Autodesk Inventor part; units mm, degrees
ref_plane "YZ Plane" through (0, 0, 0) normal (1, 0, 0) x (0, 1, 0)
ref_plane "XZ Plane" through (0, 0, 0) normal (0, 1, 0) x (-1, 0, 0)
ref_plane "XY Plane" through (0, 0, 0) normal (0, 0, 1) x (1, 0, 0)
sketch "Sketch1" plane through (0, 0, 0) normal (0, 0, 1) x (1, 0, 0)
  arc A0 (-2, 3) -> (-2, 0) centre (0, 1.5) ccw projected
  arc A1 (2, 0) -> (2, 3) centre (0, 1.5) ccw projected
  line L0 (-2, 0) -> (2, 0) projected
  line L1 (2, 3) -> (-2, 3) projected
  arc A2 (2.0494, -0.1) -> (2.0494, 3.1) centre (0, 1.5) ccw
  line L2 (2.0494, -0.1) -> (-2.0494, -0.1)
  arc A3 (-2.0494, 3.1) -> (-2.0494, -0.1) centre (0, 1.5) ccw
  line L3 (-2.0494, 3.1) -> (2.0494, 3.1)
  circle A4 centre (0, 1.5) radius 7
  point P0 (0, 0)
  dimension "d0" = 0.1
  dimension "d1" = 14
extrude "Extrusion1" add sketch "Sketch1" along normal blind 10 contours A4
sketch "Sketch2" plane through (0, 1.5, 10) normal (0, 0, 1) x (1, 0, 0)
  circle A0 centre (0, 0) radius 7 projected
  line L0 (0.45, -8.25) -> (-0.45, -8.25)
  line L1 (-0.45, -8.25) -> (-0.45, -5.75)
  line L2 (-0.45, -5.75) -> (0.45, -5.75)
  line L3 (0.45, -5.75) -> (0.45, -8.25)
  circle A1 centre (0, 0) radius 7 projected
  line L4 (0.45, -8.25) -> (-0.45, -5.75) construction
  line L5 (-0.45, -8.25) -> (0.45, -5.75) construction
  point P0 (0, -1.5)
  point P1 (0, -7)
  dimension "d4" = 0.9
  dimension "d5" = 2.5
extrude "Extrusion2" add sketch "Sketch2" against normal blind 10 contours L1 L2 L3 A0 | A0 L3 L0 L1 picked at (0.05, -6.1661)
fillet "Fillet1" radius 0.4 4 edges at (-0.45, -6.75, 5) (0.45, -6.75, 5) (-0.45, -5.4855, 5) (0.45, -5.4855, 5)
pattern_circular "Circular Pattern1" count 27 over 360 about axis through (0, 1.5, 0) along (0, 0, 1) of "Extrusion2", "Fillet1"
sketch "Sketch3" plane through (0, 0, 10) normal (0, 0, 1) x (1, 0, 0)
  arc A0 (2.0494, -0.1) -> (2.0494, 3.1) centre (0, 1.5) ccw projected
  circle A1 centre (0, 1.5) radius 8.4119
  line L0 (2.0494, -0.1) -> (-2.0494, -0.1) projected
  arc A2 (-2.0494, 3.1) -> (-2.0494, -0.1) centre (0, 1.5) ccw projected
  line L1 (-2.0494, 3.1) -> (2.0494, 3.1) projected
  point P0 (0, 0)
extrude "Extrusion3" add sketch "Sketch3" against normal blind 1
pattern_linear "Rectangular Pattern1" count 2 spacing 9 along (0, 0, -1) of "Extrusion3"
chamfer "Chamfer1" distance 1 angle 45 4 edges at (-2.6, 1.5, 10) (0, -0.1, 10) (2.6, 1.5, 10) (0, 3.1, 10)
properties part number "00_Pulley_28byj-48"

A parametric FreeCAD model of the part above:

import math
import FreeCAD as App
import Part
import Sketcher
from FreeCAD import Vector


def edges_at(feature, points):
    """Names of the edges that pass closest to the given points."""
    edges = feature.Shape.Edges
    near = lambda p: min(range(len(edges)), key=lambda i: edges[i].distToShape(Part.Vertex(*p))[0])
    return sorted({f"Edge{near(p) + 1}" for p in points})


def add_polygon(sketch, points):
    """Adds a closed chain of lines whose ends are joined by coincident constraints."""
    first, n = sketch.GeometryCount, len(points)
    for a, b in zip(points, points[1:] + points[:1]):
        sketch.addGeometry(Part.LineSegment(App.Vector(*a, 0), App.Vector(*b, 0)), False)
    for i in range(n):
        sketch.addConstraint(Sketcher.Constraint("Coincident", first + i, 2, first + (i + 1) % n, 1))

doc = App.newDocument("Part")
params = doc.addObject("Spreadsheet::Sheet", "Params")
for row, (alias, value) in enumerate([
    ("sketch1_diameter", "14 mm"),
    ("sketch1_radius", "2.6 mm"),
    ("pad1_length", "10 mm"),
    ("sketch2_width", "0.9 mm"),
    ("sketch2_height", "2.5 mm"),
    ("pad2_length", "10 mm"),
    ("fillet_radius", "0.4 mm"),
    ("sketch3_radius", "2.6 mm"),
    ("pad3_length", "1 mm"),
    ("linearpattern_pitch", "9 mm"),
    ("chamfer_size", "1 mm"),
], start=1):
    params.set(f"A{row}", alias)
    params.set(f"B{row}", "=" + value)
    params.setAlias(f"B{row}", alias)

body = doc.addObject("PartDesign::Body", "Body")

# Sketch on XY plane
sketch1 = body.newObject("Sketcher::SketchObject", "Sketch")
sketch1.AttachmentSupport = (doc.getObject("XY_Plane"), [""])
sketch1.MapMode = "FlatFace"
sketch1.addGeometry([
    Part.Circle(Vector(0, 1.5, 0), Vector(0, 0, 1), 7),  # 0
    Part.ArcOfCircle(Part.Circle(Vector(0, 1.5, 0), Vector(0, 0, 1), 2.6), math.radians(-38), math.radians(38)),  # 1
    Part.LineSegment(Vector(2, -0.1, 0), Vector(-2, -0.1, 0)),  # 2
    Part.ArcOfCircle(Part.Circle(Vector(0, 1.5, 0), Vector(0, 0, 1), 2.6), math.radians(142), math.radians(218)),  # 3
    Part.LineSegment(Vector(-2, 3.1, 0), Vector(2, 3.1, 0)),  # 4
], False)
sketch1.addConstraint([
    Sketcher.Constraint("Coincident", 1, 1, 2, 1),
    Sketcher.Constraint("Coincident", 2, 2, 3, 2),
    Sketcher.Constraint("Coincident", 3, 1, 4, 1),
    Sketcher.Constraint("Coincident", 4, 2, 1, 2),
    Sketcher.Constraint("Horizontal", 2),
    Sketcher.Constraint("Horizontal", 4),
    Sketcher.Constraint("Coincident", 1, 3, 0, 3),
    Sketcher.Constraint("Coincident", 3, 3, 0, 3),
    Sketcher.Constraint("Equal", 1, 3),
    Sketcher.Constraint("PointOnObject", 0, 3, -2),
    Sketcher.Constraint("Vertical", 2, 2, 3, 1),
    Sketcher.Constraint("Diameter", 0, 14.0),
    Sketcher.Constraint("DistanceY", 1, 1, -1, 1, 0.1),
    Sketcher.Constraint("Radius", 1, 2.6),
    Sketcher.Constraint("DistanceY", -1, 1, 0, 3, 1.5),
])
sketch1.setExpression("Constraints[11]", "Params.sketch1_diameter")
sketch1.setExpression("Constraints[13]", "Params.sketch1_radius")
pad1 = body.newObject("PartDesign::Pad", "Pad")
pad1.Profile = sketch1
pad1.setExpression("Length", "Params.pad1_length")

# Sketch on XY plane
sketch2 = body.newObject("Sketcher::SketchObject", "Sketch001")
sketch2.AttachmentSupport = (doc.getObject("XY_Plane"), [""])
sketch2.MapMode = "FlatFace"
sketch2.AttachmentOffset = App.Placement(Vector(0, 0, 10), App.Rotation())
add_polygon(sketch2, [(-0.5, -4.2), (-0.5, -6.8), (0.5, -6.8), (0.5, -4.2)])  # lines 0-3
sketch2.addConstraint([
    Sketcher.Constraint("Vertical", 0),
    Sketcher.Constraint("Horizontal", 1),
    Sketcher.Constraint("Vertical", 2),
    Sketcher.Constraint("Horizontal", 3),
    Sketcher.Constraint("DistanceX", 1, 1, 1, 2, 0.9),
    Sketcher.Constraint("DistanceY", 0, 2, 0, 1, 2.5),
    Sketcher.Constraint("DistanceX", 0, 2, -1, 1, 0.45),
    Sketcher.Constraint("DistanceY", 0, 2, -1, 1, 6.75),
])
sketch2.setExpression("Constraints[8]", "Params.sketch2_width")
sketch2.setExpression("Constraints[9]", "Params.sketch2_height")
pad2 = body.newObject("PartDesign::Pad", "Pad001")
pad2.Profile = sketch2
pad2.setExpression("Length", "Params.pad2_length")
pad2.Reversed = True
doc.recompute()

fillet = body.newObject("PartDesign::Fillet", "Fillet")
fillet.Base = (pad2, edges_at(pad2, [
    (-0.45, -6.75, 5),
    (0.45, -6.75, 5),
    (-0.45, -5.486, 5),
    (0.45, -5.486, 5),
]))
fillet.setExpression("Radius", "Params.fillet_radius")
doc.recompute()

datumline = body.newObject("PartDesign::Line", "DatumLine")
datumline.Placement = App.Placement(Vector(0, 1.5, 0), App.Rotation(Vector(0, 0, 1), Vector(0, 0, 1)))
polarpattern = body.newObject("PartDesign::PolarPattern", "PolarPattern")
polarpattern.Originals = [pad2, fillet]
polarpattern.Axis = (datumline, [""])
polarpattern.Angle = 360
polarpattern.Occurrences = 27
body.Tip = polarpattern

# Sketch on XY plane
sketch3 = body.newObject("Sketcher::SketchObject", "Sketch002")
sketch3.AttachmentSupport = (doc.getObject("XY_Plane"), [""])
sketch3.MapMode = "FlatFace"
sketch3.AttachmentOffset = App.Placement(Vector(0, 0, 10), App.Rotation())
sketch3.addGeometry([
    Part.Circle(Vector(0, 1.5, 0), Vector(0, 0, 1), 8.4),  # 0
    Part.ArcOfCircle(Part.Circle(Vector(0, 1.5, 0), Vector(0, 0, 1), 2.6), math.radians(-38), math.radians(38)),  # 1
    Part.LineSegment(Vector(2, -0.1, 0), Vector(-2, -0.1, 0)),  # 2
    Part.ArcOfCircle(Part.Circle(Vector(0, 1.5, 0), Vector(0, 0, 1), 2.6), math.radians(142), math.radians(218)),  # 3
    Part.LineSegment(Vector(-2, 3.1, 0), Vector(2, 3.1, 0)),  # 4
], False)
sketch3.addConstraint([
    Sketcher.Constraint("Coincident", 1, 1, 2, 1),
    Sketcher.Constraint("Coincident", 2, 2, 3, 2),
    Sketcher.Constraint("Coincident", 3, 1, 4, 1),
    Sketcher.Constraint("Coincident", 4, 2, 1, 2),
    Sketcher.Constraint("Horizontal", 2),
    Sketcher.Constraint("Horizontal", 4),
    Sketcher.Constraint("Coincident", 1, 3, 0, 3),
    Sketcher.Constraint("Coincident", 3, 3, 0, 3),
    Sketcher.Constraint("Equal", 1, 3),
    Sketcher.Constraint("PointOnObject", 0, 3, -2),
    Sketcher.Constraint("Vertical", 2, 2, 3, 1),
    Sketcher.Constraint("Radius", 1, 2.6),
    Sketcher.Constraint("Diameter", 0, 16.8238),
    Sketcher.Constraint("DistanceY", -1, 1, 0, 3, 1.5),
    Sketcher.Constraint("DistanceY", 1, 1, -1, 1, 0.1),
])
sketch3.setExpression("Constraints[11]", "Params.sketch3_radius")
pad3 = body.newObject("PartDesign::Pad", "Pad002")
pad3.Profile = sketch3
pad3.setExpression("Length", "Params.pad3_length")
pad3.Reversed = True
doc.recompute()

linearpattern = body.newObject("PartDesign::LinearPattern", "LinearPattern")
linearpattern.Originals = [pad3]
linearpattern.Direction = (doc.getObject("Z_Axis"), [""])
linearpattern.Mode = "offset"
linearpattern.setExpression("Offset", "Params.linearpattern_pitch")
linearpattern.Occurrences = 2
linearpattern.Reversed = True
body.Tip = linearpattern
doc.recompute()

chamfer = body.newObject("PartDesign::Chamfer", "Chamfer")
chamfer.Base = (linearpattern, edges_at(linearpattern, [
    (-2.6, 1.5, 10),
    (0, -0.1, 10),
    (2.6, 1.5, 10),
    (0, 3.1, 10),
]))
chamfer.setExpression("Size", "Params.chamfer_size")

doc.recompute()
